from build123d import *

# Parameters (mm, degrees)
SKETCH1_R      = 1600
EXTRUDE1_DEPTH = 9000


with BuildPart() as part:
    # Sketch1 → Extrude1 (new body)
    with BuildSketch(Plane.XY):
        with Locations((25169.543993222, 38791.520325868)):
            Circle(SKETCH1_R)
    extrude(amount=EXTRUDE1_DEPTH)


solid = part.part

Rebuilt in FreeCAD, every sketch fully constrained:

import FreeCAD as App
import Part
import Sketcher

V = App.Vector

doc = App.newDocument("Part")
body = doc.addObject("PartDesign::Body", "Body")

# Sketch on XY plane
sketch1 = doc.addObject("Sketcher::SketchObject", "Sketch")
body.addObject(sketch1)
sketch1.AttachmentSupport = (doc.XY_Plane, [""])
sketch1.MapMode = "FlatFace"
sketch1.addGeometry(Part.Circle(V(25170, 38792, 0), V(0, 0, 1), 1600), False)
sketch1.addConstraint([
    Sketcher.Constraint("Diameter", 0, 3200.0),
    Sketcher.Constraint("DistanceX", -1, 1, 0, 3, 25169.543993),
    Sketcher.Constraint("DistanceY", -1, 1, 0, 3, 38791.520326),
])
pad1 = doc.addObject("PartDesign::Pad", "Pad")
body.addObject(pad1)
pad1.Profile = sketch1
pad1.Length = 9000

doc.recompute()
